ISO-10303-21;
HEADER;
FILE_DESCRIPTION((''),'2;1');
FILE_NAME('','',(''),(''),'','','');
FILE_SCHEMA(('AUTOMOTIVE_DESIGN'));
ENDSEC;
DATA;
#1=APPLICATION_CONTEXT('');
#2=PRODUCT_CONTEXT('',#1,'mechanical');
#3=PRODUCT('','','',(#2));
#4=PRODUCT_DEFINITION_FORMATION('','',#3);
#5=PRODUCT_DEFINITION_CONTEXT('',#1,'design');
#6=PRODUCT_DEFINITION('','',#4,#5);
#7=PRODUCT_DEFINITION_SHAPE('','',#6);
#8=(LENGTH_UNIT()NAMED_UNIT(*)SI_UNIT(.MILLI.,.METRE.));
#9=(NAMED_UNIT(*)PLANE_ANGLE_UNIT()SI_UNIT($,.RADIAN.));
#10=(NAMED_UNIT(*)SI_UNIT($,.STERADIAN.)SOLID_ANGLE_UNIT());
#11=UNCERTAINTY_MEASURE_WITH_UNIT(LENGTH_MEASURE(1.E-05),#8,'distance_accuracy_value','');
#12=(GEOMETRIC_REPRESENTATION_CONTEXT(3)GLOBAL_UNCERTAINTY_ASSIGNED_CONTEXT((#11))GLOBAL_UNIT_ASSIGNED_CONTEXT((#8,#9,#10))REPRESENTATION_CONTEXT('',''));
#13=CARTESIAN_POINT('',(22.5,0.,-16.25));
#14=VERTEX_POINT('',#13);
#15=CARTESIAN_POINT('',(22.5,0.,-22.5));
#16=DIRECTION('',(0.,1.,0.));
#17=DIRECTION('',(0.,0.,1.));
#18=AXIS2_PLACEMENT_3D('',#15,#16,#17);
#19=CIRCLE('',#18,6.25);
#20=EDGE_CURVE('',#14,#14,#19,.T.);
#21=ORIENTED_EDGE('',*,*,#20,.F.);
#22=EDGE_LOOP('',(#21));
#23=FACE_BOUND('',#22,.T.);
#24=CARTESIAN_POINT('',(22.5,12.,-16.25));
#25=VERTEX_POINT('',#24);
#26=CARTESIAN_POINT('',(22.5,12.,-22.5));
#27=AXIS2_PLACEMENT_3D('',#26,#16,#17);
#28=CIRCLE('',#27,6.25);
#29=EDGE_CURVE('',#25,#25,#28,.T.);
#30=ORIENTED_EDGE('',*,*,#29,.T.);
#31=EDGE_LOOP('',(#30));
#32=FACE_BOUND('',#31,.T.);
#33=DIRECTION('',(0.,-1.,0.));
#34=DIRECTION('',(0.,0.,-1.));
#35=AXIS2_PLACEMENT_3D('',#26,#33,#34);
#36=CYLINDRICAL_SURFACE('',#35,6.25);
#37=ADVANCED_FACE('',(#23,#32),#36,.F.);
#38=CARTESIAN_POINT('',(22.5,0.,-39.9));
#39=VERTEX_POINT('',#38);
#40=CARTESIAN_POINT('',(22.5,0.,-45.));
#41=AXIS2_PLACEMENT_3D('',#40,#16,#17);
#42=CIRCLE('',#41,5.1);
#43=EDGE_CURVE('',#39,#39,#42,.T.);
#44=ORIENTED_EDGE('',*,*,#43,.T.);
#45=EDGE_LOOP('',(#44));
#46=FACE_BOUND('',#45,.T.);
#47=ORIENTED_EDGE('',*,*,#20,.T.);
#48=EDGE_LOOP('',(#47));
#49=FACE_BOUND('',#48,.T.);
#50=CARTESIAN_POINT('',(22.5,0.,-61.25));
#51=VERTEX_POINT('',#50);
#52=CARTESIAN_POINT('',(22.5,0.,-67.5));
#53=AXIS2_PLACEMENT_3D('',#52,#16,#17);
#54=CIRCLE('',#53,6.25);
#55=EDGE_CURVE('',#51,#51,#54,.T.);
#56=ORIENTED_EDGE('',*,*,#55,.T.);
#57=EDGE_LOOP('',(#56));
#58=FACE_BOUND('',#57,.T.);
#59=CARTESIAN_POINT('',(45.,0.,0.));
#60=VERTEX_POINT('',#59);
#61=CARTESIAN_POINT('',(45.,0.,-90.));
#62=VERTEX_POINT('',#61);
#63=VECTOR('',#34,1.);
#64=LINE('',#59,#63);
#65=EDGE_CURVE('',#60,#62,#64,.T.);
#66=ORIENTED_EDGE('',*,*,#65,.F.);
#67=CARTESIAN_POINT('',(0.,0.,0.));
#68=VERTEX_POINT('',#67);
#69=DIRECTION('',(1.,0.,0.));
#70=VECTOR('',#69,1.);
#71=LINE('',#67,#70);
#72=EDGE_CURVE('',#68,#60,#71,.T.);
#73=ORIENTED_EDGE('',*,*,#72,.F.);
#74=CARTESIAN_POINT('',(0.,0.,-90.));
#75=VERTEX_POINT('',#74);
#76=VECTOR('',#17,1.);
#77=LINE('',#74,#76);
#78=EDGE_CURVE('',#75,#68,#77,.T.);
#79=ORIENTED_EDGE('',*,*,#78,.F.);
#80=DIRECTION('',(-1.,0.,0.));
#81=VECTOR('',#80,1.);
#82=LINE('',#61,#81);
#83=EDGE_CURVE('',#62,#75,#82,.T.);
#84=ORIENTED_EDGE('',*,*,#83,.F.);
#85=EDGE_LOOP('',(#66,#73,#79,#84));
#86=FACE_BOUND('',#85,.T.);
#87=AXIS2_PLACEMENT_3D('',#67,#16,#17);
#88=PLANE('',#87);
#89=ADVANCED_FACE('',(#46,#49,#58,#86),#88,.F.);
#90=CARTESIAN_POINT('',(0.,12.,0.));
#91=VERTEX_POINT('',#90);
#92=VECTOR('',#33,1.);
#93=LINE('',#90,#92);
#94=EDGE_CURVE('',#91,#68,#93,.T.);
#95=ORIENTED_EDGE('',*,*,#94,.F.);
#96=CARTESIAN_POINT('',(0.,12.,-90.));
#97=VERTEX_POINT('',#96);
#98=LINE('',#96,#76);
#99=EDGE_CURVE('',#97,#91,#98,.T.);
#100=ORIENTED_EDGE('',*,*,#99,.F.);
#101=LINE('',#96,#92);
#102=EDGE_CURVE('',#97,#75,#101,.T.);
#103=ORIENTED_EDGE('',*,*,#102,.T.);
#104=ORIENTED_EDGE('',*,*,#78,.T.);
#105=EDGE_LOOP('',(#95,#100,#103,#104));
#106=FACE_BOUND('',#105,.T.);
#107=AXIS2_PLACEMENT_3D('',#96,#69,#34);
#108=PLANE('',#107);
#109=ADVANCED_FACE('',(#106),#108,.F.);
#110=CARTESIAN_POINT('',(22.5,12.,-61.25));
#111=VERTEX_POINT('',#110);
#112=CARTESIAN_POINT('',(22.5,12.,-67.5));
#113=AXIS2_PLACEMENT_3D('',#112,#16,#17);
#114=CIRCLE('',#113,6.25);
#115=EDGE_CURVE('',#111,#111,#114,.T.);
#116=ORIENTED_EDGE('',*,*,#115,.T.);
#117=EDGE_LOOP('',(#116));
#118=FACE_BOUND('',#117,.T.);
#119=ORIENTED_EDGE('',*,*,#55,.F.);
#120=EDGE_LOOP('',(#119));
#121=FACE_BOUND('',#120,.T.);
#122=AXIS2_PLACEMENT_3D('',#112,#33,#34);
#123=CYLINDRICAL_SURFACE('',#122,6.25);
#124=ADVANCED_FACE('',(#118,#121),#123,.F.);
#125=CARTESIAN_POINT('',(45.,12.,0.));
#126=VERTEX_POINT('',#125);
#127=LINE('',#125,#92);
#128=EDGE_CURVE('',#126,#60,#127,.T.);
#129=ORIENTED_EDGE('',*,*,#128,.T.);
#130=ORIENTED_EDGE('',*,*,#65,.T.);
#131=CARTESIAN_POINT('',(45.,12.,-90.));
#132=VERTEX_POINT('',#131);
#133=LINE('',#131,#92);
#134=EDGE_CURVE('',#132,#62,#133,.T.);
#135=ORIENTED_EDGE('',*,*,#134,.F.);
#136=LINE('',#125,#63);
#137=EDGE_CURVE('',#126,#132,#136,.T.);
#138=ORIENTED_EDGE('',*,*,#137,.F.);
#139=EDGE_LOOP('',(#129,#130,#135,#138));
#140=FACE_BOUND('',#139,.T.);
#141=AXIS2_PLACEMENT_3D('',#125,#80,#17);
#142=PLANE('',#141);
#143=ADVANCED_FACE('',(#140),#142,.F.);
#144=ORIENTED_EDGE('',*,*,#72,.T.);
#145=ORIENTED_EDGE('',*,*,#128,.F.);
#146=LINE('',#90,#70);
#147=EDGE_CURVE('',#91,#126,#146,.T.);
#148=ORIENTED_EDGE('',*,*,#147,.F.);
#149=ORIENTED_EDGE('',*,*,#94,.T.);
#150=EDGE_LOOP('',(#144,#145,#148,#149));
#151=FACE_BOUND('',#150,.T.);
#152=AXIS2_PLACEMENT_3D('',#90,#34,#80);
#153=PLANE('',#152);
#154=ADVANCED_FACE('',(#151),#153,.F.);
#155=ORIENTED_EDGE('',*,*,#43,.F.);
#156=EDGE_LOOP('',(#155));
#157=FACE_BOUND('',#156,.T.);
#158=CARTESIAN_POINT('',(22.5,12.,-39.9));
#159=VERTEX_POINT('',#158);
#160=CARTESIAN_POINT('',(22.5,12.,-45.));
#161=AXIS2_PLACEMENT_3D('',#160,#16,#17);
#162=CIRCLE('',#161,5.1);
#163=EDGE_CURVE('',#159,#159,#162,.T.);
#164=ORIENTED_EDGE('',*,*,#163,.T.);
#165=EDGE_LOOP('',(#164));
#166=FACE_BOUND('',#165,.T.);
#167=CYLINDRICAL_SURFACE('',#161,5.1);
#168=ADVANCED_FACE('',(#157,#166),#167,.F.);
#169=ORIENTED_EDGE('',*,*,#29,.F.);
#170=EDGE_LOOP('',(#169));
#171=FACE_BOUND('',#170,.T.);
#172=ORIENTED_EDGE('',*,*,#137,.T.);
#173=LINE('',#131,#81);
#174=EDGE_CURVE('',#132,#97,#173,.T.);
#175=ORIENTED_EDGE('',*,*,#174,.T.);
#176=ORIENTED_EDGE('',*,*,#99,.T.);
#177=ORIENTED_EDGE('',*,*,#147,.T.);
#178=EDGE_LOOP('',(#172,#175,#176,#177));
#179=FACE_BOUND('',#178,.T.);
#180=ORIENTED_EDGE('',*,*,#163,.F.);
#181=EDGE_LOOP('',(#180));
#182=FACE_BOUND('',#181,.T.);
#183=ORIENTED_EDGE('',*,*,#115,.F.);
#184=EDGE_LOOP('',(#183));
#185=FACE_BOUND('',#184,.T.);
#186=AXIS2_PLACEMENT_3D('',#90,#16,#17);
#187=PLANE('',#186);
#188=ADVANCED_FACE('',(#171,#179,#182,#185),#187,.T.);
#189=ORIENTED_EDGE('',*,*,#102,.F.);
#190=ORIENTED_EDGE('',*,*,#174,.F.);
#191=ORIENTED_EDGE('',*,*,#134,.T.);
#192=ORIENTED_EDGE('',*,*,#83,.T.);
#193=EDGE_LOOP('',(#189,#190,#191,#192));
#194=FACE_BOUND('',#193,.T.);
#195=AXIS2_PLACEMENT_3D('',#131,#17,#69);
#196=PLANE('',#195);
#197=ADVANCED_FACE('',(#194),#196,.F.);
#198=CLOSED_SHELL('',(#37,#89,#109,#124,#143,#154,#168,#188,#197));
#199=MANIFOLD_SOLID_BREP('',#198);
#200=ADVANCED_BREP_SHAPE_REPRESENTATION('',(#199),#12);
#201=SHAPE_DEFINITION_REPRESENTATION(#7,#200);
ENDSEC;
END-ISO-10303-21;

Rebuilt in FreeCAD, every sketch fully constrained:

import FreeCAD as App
import Part
import Sketcher

doc = App.newDocument("Part")
body = doc.addObject("PartDesign::Body", "Body")

sketch1 = body.newObject("Sketcher::SketchObject", "Sketch")
sketch1.AttachmentSupport = (doc.getObject("XZ_Plane"), [""])
sketch1.MapMode = "FlatFace"
sketch1.addGeometry(Part.LineSegment(App.Vector(0, -90, 0), App.Vector(0, 0, 0)), False)
sketch1.addGeometry(Part.LineSegment(App.Vector(0, 0, 0), App.Vector(45, 0, 0)), False)
sketch1.addGeometry(Part.LineSegment(App.Vector(45, 0, 0), App.Vector(45, -90, 0)), False)
sketch1.addGeometry(Part.LineSegment(App.Vector(45, -90, 0), App.Vector(0, -90, 0)), False)
sketch1.addGeometry(Part.Circle(App.Vector(22, -22, 0), App.Vector(0, 0, 1), 6), False)
sketch1.addGeometry(Part.Circle(App.Vector(22, -68, 0), App.Vector(0, 0, 1), 6), False)
sketch1.addConstraint(Sketcher.Constraint("Coincident", 0, 2, 1, 1))
sketch1.addConstraint(Sketcher.Constraint("Coincident", 1, 2, 2, 1))
sketch1.addConstraint(Sketcher.Constraint("Coincident", 2, 2, 3, 1))
sketch1.addConstraint(Sketcher.Constraint("Coincident", 3, 2, 0, 1))
sketch1.addConstraint(Sketcher.Constraint("Vertical", 0))
sketch1.addConstraint(Sketcher.Constraint("Horizontal", 1))
sketch1.addConstraint(Sketcher.Constraint("Vertical", 2))
sketch1.addConstraint(Sketcher.Constraint("Horizontal", 3))
sketch1.addConstraint(Sketcher.Constraint("Coincident", 0, 2, -1, 1))
sketch1.addConstraint(Sketcher.Constraint("Equal", 4, 5))
sketch1.addConstraint(Sketcher.Constraint("Vertical", 4, 3, 5, 3))
sketch1.addConstraint(Sketcher.Constraint("Diameter", 4, 12.5))
sketch1.addConstraint(Sketcher.Constraint("DistanceX", 1, 1, 1, 2, 45.0))
sketch1.addConstraint(Sketcher.Constraint("DistanceY", 0, 1, 0, 2, 90.0))
sketch1.addConstraint(Sketcher.Constraint("DistanceY", 5, 3, 4, 3, 45.0))
sketch1.addConstraint(Sketcher.Constraint("DistanceX", -1, 1, 4, 3, 22.5))
sketch1.addConstraint(Sketcher.Constraint("DistanceY", 4, 3, -1, 1, 22.5))
pad1 = body.newObject("PartDesign::Pad", "Pad")
pad1.Profile = sketch1
pad1.Length = 12
pad1.Reversed = True

sketch2 = body.newObject("Sketcher::SketchObject", "Sketch001")
sketch2.AttachmentSupport = (doc.getObject("XZ_Plane"), [""])
sketch2.MapMode = "FlatFace"
sketch2.AttachmentOffset = App.Placement(App.Vector(0, 0, -12), App.Rotation())
sketch2.addGeometry(Part.Circle(App.Vector(22, -45, 0), App.Vector(0, 0, 1), 5), False)
sketch2.addConstraint(Sketcher.Constraint("Diameter", 0, 10.2))
sketch2.addConstraint(Sketcher.Constraint("DistanceY", 0, 3, -1, 1, 45.0))
sketch2.addConstraint(Sketcher.Constraint("DistanceX", -1, 1, 0, 3, 22.5))
doc.recompute()
hole = body.newObject("PartDesign::Hole", "Hole")
hole.Profile = sketch2
hole.ThreadType = "None"
hole.Diameter = 10.2
hole.DepthType = "Dimension"
hole.Depth = 29.25
hole.DrillPoint = "Angled"
hole.DrillPointAngle = 118
hole.Reversed = True

doc.recompute()
